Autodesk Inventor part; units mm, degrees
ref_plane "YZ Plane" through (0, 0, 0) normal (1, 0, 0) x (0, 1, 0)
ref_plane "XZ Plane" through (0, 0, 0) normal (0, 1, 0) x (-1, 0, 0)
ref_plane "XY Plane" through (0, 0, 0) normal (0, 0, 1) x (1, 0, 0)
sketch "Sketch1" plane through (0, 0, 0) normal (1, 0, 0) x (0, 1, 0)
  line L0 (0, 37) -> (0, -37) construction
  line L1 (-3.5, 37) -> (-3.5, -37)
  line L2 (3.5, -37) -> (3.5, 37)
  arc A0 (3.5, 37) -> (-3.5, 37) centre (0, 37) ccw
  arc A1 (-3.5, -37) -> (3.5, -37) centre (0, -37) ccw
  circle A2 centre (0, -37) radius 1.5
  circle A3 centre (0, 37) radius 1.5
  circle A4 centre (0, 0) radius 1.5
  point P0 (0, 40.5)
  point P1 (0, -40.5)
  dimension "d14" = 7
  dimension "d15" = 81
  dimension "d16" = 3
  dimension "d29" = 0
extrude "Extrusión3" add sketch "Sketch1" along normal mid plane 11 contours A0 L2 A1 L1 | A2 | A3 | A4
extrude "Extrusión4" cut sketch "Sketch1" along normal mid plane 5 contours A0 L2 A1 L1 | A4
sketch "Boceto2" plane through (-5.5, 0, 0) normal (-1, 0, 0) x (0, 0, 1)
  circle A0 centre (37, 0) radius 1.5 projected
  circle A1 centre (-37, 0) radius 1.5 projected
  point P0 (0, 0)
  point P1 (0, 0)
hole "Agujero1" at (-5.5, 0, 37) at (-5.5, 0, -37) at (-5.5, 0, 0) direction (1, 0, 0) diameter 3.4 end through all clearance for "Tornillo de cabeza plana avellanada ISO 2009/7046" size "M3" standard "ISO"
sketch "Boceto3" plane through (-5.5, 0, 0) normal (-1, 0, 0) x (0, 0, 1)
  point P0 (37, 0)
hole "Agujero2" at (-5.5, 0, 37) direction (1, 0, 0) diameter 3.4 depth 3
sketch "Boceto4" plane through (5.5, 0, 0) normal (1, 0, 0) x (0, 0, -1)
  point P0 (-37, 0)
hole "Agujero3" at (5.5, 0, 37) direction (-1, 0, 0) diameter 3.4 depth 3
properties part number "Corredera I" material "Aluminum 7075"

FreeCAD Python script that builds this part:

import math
import FreeCAD as App
import Part
import Sketcher

doc = App.newDocument("Part")
body = doc.addObject("PartDesign::Body", "Body")
body.AllowCompound = True

# Sketch on YZ plane
sketch1 = body.newObject("Sketcher::SketchObject", "Sketch")
sketch1.AttachmentSupport = (doc.getObject("YZ_Plane"), [""])
sketch1.MapMode = "FlatFace"
sketch1.addGeometry(Part.ArcOfCircle(Part.Circle(App.Vector(0, 37, 0), App.Vector(0, 0, 1), 3.5), math.radians(0), math.radians(180)), False)
sketch1.addGeometry(Part.LineSegment(App.Vector(-3.5, 37, 0), App.Vector(-3.5, -37, 0)), False)
sketch1.addGeometry(Part.ArcOfCircle(Part.Circle(App.Vector(0, -37, 0), App.Vector(0, 0, 1), 3.5), math.radians(180), math.radians(360)), False)
sketch1.addGeometry(Part.LineSegment(App.Vector(3.5, -37, 0), App.Vector(3.5, 37, 0)), False)
sketch1.addConstraint(Sketcher.Constraint("Tangent", 0, 2, 1, 1))
sketch1.addConstraint(Sketcher.Constraint("Tangent", 1, 2, 2, 1))
sketch1.addConstraint(Sketcher.Constraint("Tangent", 2, 2, 3, 1))
sketch1.addConstraint(Sketcher.Constraint("Tangent", 3, 2, 0, 1))
sketch1.addConstraint(Sketcher.Constraint("Vertical", 1))
sketch1.addConstraint(Sketcher.Constraint("Vertical", 3))
sketch1.addConstraint(Sketcher.Constraint("Symmetric", 0, 3, 2, 3, -1, 1))
sketch1.addConstraint(Sketcher.Constraint("Radius", 0, 3.5))
sketch1.addConstraint(Sketcher.Constraint("DistanceY", 1, 2, 1, 1, 74.0))
pad1 = body.newObject("PartDesign::Pad", "Pad")
pad1.Profile = sketch1
pad1.Length = 11
pad1.Midplane = True

# Sketch on YZ plane
sketch2 = body.newObject("Sketcher::SketchObject", "Sketch001")
sketch2.AttachmentSupport = (doc.getObject("YZ_Plane"), [""])
sketch2.MapMode = "FlatFace"
sketch2.addGeometry(Part.ArcOfCircle(Part.Circle(App.Vector(0, 37, 0), App.Vector(0, 0, 1), 3.5), math.radians(0), math.radians(180)), False)
sketch2.addGeometry(Part.LineSegment(App.Vector(-3.5, 37, 0), App.Vector(-3.5, -37, 0)), False)
sketch2.addGeometry(Part.ArcOfCircle(Part.Circle(App.Vector(0, -37, 0), App.Vector(0, 0, 1), 3.5), math.radians(180), math.radians(360)), False)
sketch2.addGeometry(Part.LineSegment(App.Vector(3.5, -37, 0), App.Vector(3.5, 37, 0)), False)
sketch2.addGeometry(Part.Circle(App.Vector(0, -37, 0), App.Vector(0, 0, 1), 1.5), False)
sketch2.addGeometry(Part.Circle(App.Vector(0, 37, 0), App.Vector(0, 0, 1), 1.5), False)
sketch2.addConstraint(Sketcher.Constraint("Tangent", 0, 2, 1, 1))
sketch2.addConstraint(Sketcher.Constraint("Tangent", 1, 2, 2, 1))
sketch2.addConstraint(Sketcher.Constraint("Tangent", 2, 2, 3, 1))
sketch2.addConstraint(Sketcher.Constraint("Tangent", 3, 2, 0, 1))
sketch2.addConstraint(Sketcher.Constraint("Vertical", 1))
sketch2.addConstraint(Sketcher.Constraint("Vertical", 3))
sketch2.addConstraint(Sketcher.Constraint("Coincident", 4, 3, 2, 3))
sketch2.addConstraint(Sketcher.Constraint("Coincident", 5, 3, 0, 3))
sketch2.addConstraint(Sketcher.Constraint("Equal", 4, 5))
sketch2.addConstraint(Sketcher.Constraint("Symmetric", 0, 3, 2, 3, -1, 1))
sketch2.addConstraint(Sketcher.Constraint("Diameter", 4, 3.0))
sketch2.addConstraint(Sketcher.Constraint("Radius", 0, 3.5))
sketch2.addConstraint(Sketcher.Constraint("DistanceY", 1, 2, 1, 1, 74.0))
pocket1 = body.newObject("PartDesign::Pocket", "Pocket")
pocket1.Profile = sketch2
pocket1.Length = 5
pocket1.Midplane = True

# Sketch on YZ plane
sketch3 = body.newObject("Sketcher::SketchObject", "Sketch002")
sketch3.AttachmentSupport = (doc.getObject("YZ_Plane"), [""])
sketch3.MapMode = "FlatFace"
sketch3.AttachmentOffset = App.Placement(App.Vector(0, 0, -5.5), App.Rotation())
sketch3.addGeometry(Part.Circle(App.Vector(0, 37, 0), App.Vector(0, 0, 1), 1.7), False)
sketch3.addGeometry(Part.Circle(App.Vector(0, -37, 0), App.Vector(0, 0, 1), 1.7), False)
sketch3.addGeometry(Part.Circle(App.Vector(0, 0, 0), App.Vector(0, 0, 1), 1.7), False)
sketch3.addConstraint(Sketcher.Constraint("Coincident", 2, 3, -1, 1))
sketch3.addConstraint(Sketcher.Constraint("Equal", 0, 1))
sketch3.addConstraint(Sketcher.Constraint("Equal", 1, 2))
sketch3.addConstraint(Sketcher.Constraint("Symmetric", 0, 3, 1, 3, -1, 1))
sketch3.addConstraint(Sketcher.Constraint("PointOnObject", 0, 3, -2))
sketch3.addConstraint(Sketcher.Constraint("Diameter", 0, 3.4))
sketch3.addConstraint(Sketcher.Constraint("DistanceY", -1, 1, 0, 3, 37.0))
doc.recompute()
hole = body.newObject("PartDesign::Hole", "Hole")
hole.Profile = sketch3
hole.ThreadType = "None"
hole.Diameter = 3.4
hole.DepthType = "ThroughAll"
hole.Reversed = True

# Sketch on YZ plane
sketch4 = body.newObject("Sketcher::SketchObject", "Sketch003")
sketch4.AttachmentSupport = (doc.getObject("YZ_Plane"), [""])
sketch4.MapMode = "FlatFace"
sketch4.AttachmentOffset = App.Placement(App.Vector(0, 0, -5.5), App.Rotation())
sketch4.addGeometry(Part.Circle(App.Vector(0, 37, 0), App.Vector(0, 0, 1), 1.7), False)
sketch4.addConstraint(Sketcher.Constraint("PointOnObject", 0, 3, -2))
sketch4.addConstraint(Sketcher.Constraint("Diameter", 0, 3.4))
sketch4.addConstraint(Sketcher.Constraint("DistanceY", -1, 1, 0, 3, 37.0))
doc.recompute()
hole2 = body.newObject("PartDesign::Hole", "Hole001")
hole2.Profile = sketch4
hole2.ThreadType = "None"
hole2.Diameter = 3.4
hole2.DepthType = "Dimension"
hole2.Depth = 3
hole2.DrillPoint = "Flat"
hole2.Reversed = True

# Sketch on YZ plane
sketch5 = body.newObject("Sketcher::SketchObject", "Sketch004")
sketch5.AttachmentSupport = (doc.getObject("YZ_Plane"), [""])
sketch5.MapMode = "FlatFace"
sketch5.AttachmentOffset = App.Placement(App.Vector(0, 0, 5.5), App.Rotation())
sketch5.addGeometry(Part.Circle(App.Vector(0, 37, 0), App.Vector(0, 0, 1), 1.7), False)
sketch5.addConstraint(Sketcher.Constraint("PointOnObject", 0, 3, -2))
sketch5.addConstraint(Sketcher.Constraint("Diameter", 0, 3.4))
sketch5.addConstraint(Sketcher.Constraint("DistanceY", -1, 1, 0, 3, 37.0))
doc.recompute()
hole3 = body.newObject("PartDesign::Hole", "Hole002")
hole3.Profile = sketch5
hole3.ThreadType = "None"
hole3.Diameter = 3.4
hole3.DepthType = "Dimension"
hole3.Depth = 3
hole3.DrillPoint = "Flat"

doc.recompute()
